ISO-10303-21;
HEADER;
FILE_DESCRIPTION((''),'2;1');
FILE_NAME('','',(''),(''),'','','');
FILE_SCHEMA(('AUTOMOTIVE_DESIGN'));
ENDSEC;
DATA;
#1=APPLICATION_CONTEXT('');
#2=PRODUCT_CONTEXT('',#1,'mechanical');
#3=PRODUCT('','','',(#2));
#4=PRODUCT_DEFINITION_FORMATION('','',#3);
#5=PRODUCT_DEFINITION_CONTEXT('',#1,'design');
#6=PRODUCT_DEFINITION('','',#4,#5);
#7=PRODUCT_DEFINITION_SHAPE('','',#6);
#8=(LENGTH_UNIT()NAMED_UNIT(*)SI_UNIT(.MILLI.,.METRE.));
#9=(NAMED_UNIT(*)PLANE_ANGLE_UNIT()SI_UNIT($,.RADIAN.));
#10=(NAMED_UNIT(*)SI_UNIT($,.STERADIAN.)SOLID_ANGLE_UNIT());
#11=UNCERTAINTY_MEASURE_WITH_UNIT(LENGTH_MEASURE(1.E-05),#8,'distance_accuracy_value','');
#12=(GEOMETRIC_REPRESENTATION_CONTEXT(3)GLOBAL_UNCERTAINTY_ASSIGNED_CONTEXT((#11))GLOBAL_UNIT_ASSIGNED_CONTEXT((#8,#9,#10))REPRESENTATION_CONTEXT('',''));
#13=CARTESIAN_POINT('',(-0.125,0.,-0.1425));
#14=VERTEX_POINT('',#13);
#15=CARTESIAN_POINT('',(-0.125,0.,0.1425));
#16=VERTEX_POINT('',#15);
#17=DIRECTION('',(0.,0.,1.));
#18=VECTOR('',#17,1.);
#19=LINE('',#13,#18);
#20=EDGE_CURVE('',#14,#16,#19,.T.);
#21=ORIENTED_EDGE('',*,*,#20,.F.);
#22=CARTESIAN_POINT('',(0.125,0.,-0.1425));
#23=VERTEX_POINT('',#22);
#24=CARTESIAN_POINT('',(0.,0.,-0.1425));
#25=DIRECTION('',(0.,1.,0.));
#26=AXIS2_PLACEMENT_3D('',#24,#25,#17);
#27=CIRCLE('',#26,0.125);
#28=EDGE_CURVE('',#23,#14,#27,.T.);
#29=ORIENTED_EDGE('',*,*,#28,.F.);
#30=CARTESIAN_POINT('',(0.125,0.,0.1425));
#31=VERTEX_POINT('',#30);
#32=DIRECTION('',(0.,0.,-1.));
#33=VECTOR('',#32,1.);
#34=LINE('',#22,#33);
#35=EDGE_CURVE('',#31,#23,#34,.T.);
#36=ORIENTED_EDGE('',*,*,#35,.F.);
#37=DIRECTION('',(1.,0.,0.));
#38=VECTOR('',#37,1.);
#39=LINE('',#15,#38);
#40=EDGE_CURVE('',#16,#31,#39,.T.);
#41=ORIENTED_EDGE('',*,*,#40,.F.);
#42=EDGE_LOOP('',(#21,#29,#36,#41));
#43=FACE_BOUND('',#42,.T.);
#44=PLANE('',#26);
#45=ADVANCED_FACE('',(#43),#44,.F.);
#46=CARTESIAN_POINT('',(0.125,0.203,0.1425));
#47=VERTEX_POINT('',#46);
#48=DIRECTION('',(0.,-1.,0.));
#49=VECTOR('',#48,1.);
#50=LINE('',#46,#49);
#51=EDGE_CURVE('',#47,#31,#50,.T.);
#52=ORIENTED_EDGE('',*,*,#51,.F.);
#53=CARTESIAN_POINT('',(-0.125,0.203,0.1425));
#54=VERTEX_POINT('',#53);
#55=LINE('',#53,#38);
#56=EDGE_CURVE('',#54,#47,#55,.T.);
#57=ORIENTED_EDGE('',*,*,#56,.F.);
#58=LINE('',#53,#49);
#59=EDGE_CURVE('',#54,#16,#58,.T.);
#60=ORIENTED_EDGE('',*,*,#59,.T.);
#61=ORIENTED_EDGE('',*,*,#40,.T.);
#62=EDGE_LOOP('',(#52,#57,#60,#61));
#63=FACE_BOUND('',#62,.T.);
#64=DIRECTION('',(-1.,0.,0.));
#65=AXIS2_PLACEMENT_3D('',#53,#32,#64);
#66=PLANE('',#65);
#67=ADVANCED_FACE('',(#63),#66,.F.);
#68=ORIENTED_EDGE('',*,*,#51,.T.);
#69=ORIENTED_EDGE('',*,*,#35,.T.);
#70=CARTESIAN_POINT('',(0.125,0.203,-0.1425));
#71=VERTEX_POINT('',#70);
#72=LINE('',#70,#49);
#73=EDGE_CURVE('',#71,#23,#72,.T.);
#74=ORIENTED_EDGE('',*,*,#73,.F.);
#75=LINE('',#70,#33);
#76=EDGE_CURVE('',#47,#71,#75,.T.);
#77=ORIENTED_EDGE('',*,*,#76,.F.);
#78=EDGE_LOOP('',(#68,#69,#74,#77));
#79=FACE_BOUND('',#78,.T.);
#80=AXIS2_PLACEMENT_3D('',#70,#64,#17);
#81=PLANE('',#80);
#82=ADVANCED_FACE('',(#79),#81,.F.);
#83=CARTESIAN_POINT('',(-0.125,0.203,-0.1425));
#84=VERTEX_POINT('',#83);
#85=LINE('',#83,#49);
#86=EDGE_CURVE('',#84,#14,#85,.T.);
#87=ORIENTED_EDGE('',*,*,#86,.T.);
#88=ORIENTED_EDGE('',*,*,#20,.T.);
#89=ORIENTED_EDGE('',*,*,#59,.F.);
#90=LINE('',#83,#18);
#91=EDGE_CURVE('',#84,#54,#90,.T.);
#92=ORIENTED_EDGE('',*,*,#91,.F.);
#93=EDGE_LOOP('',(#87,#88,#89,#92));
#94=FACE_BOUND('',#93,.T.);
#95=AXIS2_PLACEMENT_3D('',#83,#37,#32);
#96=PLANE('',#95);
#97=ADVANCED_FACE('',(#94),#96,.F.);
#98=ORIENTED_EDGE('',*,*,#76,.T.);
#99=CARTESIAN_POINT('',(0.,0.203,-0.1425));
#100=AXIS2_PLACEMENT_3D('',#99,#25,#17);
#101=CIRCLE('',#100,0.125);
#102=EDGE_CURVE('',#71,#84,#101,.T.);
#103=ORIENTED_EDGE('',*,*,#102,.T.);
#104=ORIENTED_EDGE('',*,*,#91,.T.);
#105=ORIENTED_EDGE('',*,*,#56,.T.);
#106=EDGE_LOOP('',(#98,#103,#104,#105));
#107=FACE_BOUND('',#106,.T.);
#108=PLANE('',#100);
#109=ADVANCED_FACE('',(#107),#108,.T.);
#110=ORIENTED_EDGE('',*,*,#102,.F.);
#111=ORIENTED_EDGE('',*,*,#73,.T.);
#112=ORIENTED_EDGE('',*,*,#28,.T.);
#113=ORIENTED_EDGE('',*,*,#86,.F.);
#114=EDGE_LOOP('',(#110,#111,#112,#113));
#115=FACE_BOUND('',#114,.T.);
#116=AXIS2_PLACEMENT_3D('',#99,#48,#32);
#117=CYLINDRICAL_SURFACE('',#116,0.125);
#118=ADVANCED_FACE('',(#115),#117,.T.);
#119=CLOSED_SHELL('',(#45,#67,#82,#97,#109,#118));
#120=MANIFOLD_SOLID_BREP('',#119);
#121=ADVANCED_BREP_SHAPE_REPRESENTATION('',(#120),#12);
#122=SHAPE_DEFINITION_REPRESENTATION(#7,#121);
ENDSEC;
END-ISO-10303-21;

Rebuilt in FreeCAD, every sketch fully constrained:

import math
import FreeCAD as App
import Part
import Sketcher
Q = App.Units.Quantity

doc = App.newDocument("Part")
body = doc.addObject("PartDesign::Body", "Body")

# Sketch on XZ plane
sketch1 = body.newObject("Sketcher::SketchObject", "Sketch")
sketch1.AttachmentSupport = (doc.getObject("XZ_Plane"), [""])
sketch1.MapMode = "FlatFace"
sketch1.addGeometry(Part.LineSegment(App.Vector(-0.125, -0.1425, 0), App.Vector(-0.125, 0.1425, 0)), False)
sketch1.addGeometry(Part.LineSegment(App.Vector(-0.125, 0.1425, 0), App.Vector(0.125, 0.1425, 0)), False)
sketch1.addGeometry(Part.LineSegment(App.Vector(0.125, 0.1425, 0), App.Vector(0.125, -0.1425, 0)), False)
sketch1.addGeometry(Part.ArcOfCircle(Part.Circle(App.Vector(0, -0.1425, 0), App.Vector(0, 0, 1), 0.125), math.radians(180), math.radians(360)), False)
sketch1.addConstraint(Sketcher.Constraint("Coincident", 0, 2, 1, 1))
sketch1.addConstraint(Sketcher.Constraint("Coincident", 1, 2, 2, 1))
sketch1.addConstraint(Sketcher.Constraint("Tangent", 2, 2, 3, 2))
sketch1.addConstraint(Sketcher.Constraint("Tangent", 3, 1, 0, 1))
sketch1.addConstraint(Sketcher.Constraint("Vertical", 0))
sketch1.addConstraint(Sketcher.Constraint("Horizontal", 1))
sketch1.addConstraint(Sketcher.Constraint("Vertical", 2))
sketch1.addConstraint(Sketcher.Constraint("Symmetric", 0, 2, 2, 2, -1, 1))
sketch1.addConstraint(Sketcher.Constraint("Radius", 3, Q("0.125 mm")))
sketch1.addConstraint(Sketcher.Constraint("DistanceY", 0, 1, 0, 2, Q("0.285 mm")))
pad1 = body.newObject("PartDesign::Pad", "Pad")
pad1.Profile = sketch1
pad1.Length = 0.203
pad1.Reversed = True

doc.recompute()
